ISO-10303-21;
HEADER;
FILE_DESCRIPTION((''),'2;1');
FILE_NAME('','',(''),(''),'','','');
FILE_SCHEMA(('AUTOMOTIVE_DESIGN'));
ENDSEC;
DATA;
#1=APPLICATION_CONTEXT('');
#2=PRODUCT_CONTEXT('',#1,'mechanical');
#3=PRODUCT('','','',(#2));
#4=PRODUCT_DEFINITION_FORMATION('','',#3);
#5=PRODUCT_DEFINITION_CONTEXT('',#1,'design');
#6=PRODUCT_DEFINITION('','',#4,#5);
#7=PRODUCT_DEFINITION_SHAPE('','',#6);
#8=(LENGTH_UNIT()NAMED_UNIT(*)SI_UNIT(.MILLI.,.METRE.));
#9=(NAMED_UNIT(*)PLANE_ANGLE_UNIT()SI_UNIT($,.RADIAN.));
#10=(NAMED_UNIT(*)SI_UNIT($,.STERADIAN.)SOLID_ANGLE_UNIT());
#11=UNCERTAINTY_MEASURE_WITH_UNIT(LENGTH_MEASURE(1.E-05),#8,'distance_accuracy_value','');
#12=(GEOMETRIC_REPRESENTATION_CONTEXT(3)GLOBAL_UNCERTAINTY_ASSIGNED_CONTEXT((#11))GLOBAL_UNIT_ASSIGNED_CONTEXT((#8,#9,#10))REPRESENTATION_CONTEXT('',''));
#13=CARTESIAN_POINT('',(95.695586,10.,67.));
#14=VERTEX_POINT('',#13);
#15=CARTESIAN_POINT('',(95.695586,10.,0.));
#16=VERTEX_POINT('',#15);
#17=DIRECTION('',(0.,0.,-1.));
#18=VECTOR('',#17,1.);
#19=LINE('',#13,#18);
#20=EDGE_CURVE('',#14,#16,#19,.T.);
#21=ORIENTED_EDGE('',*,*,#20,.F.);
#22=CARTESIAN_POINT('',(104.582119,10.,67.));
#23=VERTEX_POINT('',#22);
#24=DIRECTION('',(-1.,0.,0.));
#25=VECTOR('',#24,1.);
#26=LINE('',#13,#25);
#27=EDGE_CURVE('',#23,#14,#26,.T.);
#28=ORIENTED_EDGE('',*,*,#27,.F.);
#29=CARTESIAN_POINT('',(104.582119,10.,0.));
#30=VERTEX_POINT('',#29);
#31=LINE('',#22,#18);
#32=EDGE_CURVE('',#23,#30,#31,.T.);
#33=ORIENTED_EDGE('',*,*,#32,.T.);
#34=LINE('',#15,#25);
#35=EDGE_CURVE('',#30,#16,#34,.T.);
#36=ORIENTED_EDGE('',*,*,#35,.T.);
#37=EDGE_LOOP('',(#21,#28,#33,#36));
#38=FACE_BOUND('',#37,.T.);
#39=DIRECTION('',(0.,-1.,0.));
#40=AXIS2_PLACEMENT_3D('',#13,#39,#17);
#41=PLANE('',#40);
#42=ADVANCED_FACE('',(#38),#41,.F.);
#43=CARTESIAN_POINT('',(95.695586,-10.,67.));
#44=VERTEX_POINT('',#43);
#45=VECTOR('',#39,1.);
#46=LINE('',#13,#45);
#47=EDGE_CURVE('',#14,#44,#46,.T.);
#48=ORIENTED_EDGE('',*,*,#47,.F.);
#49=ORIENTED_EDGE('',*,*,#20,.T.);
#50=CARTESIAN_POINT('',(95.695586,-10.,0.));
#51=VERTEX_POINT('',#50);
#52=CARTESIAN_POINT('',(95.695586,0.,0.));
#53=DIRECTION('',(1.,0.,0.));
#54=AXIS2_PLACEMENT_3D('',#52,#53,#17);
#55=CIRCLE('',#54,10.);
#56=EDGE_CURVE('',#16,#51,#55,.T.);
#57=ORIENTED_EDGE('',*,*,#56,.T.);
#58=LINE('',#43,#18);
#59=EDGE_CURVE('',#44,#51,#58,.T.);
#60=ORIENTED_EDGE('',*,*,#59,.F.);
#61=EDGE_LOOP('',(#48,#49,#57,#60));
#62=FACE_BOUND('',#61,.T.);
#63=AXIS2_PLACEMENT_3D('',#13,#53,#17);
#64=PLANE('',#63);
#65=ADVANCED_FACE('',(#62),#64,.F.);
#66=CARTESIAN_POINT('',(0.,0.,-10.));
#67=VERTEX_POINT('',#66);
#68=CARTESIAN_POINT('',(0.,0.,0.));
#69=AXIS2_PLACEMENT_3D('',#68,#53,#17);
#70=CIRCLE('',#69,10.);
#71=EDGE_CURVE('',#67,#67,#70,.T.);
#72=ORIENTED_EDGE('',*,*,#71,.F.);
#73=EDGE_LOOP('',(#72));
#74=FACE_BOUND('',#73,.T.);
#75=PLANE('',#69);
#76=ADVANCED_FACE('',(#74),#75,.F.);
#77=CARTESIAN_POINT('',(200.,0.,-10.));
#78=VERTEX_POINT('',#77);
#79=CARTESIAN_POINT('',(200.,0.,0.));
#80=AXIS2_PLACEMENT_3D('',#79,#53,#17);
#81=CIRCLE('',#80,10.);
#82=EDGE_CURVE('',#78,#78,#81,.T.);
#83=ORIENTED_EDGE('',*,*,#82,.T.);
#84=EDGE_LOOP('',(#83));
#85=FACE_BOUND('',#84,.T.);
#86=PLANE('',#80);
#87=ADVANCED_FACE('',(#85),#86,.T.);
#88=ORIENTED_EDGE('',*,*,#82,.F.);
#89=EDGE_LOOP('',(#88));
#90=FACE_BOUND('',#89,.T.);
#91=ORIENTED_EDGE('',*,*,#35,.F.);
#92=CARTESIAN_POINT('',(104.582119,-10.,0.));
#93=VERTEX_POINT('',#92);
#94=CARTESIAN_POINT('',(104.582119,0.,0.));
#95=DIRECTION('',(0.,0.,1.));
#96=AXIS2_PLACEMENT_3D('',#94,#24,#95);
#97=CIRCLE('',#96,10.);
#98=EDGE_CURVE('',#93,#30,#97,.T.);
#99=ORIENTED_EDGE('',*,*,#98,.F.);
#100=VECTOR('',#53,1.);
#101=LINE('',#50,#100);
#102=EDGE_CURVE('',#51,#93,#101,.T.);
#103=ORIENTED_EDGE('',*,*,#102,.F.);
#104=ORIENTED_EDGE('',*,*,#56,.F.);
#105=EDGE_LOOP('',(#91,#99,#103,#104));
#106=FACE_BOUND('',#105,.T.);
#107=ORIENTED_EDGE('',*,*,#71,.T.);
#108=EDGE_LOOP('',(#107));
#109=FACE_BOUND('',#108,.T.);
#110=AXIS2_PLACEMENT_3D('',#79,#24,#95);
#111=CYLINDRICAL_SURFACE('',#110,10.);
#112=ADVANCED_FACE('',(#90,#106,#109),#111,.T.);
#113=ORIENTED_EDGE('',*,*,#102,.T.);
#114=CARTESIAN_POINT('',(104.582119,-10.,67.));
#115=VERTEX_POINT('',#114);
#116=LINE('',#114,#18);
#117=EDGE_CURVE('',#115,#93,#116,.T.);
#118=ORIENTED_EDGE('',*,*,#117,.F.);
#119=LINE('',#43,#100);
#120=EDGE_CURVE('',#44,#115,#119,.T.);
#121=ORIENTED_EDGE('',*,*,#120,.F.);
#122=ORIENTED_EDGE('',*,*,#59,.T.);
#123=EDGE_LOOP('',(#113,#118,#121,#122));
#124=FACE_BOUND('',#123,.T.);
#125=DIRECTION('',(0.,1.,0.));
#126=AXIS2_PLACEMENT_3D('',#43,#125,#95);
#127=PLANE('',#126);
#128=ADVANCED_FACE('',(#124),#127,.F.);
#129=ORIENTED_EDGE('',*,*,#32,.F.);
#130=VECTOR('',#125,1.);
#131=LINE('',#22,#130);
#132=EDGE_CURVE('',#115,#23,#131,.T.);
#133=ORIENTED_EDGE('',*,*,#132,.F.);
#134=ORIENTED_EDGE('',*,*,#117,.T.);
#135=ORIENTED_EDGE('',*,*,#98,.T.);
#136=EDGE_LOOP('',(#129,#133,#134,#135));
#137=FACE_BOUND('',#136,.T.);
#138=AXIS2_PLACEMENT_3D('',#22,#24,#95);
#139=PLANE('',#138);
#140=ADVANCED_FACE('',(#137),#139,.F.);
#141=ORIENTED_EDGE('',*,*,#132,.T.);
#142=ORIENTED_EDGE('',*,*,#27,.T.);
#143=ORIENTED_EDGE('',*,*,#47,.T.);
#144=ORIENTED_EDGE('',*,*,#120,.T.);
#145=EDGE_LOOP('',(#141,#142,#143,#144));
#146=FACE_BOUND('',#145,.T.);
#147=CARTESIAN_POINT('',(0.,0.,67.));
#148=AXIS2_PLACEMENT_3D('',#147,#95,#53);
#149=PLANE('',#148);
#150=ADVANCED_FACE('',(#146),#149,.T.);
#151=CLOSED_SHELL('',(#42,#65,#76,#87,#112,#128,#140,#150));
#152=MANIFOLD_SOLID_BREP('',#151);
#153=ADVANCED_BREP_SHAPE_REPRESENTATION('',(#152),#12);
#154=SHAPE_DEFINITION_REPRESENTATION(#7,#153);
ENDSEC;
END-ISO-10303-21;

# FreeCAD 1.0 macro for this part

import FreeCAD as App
import Part
import Sketcher
from FreeCAD import Vector
Q = App.Units.Quantity

doc = App.newDocument("Part")
params = doc.addObject("Spreadsheet::Sheet", "Params")
for row, (alias, value) in enumerate([
    ("sketch1_diameter", "20 mm"),
    ("pad1_length", "200 mm"),
    ("sketch2_height", "20 mm"),
    ("pad2_length", "67 mm"),
], start=1):
    params.set(f"A{row}", alias)
    params.set(f"B{row}", "=" + value)
    params.setAlias(f"B{row}", alias)

body = doc.addObject("PartDesign::Body", "Body")

sketch1 = body.newObject("Sketcher::SketchObject", "Sketch")
sketch1.AttachmentSupport = (doc.getObject("YZ_Plane"), [""])
sketch1.MapMode = "FlatFace"
sketch1.addGeometry(Part.Circle(Vector(0, 0, 0), Vector(0, 0, 1), 10), False)
sketch1.addConstraint([
    Sketcher.Constraint("Coincident", 0, 3, -1, 1),
    Sketcher.Constraint("Diameter", 0, Q("20 mm")),
])
sketch1.setExpression("Constraints[1]", "Params.sketch1_diameter")
pad1 = body.newObject("PartDesign::Pad", "Pad")
pad1.Profile = sketch1
pad1.setExpression("Length", "Params.pad1_length")

sketch2 = body.newObject("Sketcher::SketchObject", "Sketch001")
sketch2.AttachmentSupport = (doc.getObject("XY_Plane"), [""])
sketch2.MapMode = "FlatFace"
sketch2.addGeometry([
    Part.LineSegment(Vector(96, 10, 0), Vector(96, -10, 0)),
    Part.LineSegment(Vector(96, -10, 0), Vector(105, -10, 0)),
    Part.LineSegment(Vector(105, -10, 0), Vector(105, 10, 0)),
    Part.LineSegment(Vector(105, 10, 0), Vector(96, 10, 0)),
], False)
sketch2.addConstraint([
    Sketcher.Constraint("Coincident", 0, 2, 1, 1),
    Sketcher.Constraint("Coincident", 1, 2, 2, 1),
    Sketcher.Constraint("Coincident", 2, 2, 3, 1),
    Sketcher.Constraint("Coincident", 3, 2, 0, 1),
    Sketcher.Constraint("Vertical", 0),
    Sketcher.Constraint("Horizontal", 1),
    Sketcher.Constraint("Vertical", 2),
    Sketcher.Constraint("Horizontal", 3),
    Sketcher.Constraint("DistanceY", 0, 2, 0, 1, Q("20 mm")),
    Sketcher.Constraint("DistanceY", 0, 2, -1, 1, Q("10 mm")),
    Sketcher.Constraint("DistanceX", 1, 1, 1, 2, Q("8.886533 mm")),
    Sketcher.Constraint("DistanceX", -1, 1, 1, 2, Q("104.582119 mm")),
])
sketch2.setExpression("Constraints[8]", "Params.sketch2_height")
pad2 = body.newObject("PartDesign::Pad", "Pad001")
pad2.Profile = sketch2
pad2.setExpression("Length", "Params.pad2_length")

doc.recompute()
